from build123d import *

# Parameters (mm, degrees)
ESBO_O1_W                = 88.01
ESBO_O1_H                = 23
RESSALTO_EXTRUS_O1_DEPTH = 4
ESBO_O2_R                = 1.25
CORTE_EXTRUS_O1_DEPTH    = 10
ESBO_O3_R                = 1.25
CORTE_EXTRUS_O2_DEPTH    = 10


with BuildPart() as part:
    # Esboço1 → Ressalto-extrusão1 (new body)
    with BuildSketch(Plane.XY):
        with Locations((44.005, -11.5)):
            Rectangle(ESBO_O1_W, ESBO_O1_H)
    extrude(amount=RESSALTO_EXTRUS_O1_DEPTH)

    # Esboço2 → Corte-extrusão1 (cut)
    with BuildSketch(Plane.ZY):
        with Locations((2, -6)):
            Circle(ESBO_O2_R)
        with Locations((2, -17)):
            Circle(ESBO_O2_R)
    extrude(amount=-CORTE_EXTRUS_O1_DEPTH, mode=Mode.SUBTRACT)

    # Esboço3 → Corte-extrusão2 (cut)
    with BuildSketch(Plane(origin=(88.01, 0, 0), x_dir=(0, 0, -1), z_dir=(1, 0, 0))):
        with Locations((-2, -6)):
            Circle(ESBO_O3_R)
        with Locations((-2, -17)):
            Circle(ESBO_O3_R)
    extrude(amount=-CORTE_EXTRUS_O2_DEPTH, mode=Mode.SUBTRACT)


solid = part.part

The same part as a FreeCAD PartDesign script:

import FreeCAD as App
import Part
import Sketcher

V = App.Vector
Q = App.Units.Quantity


def add_polygon(sketch, points):
    """Adds a closed chain of lines whose ends are joined by coincident constraints."""
    first, n = sketch.GeometryCount, len(points)
    for a, b in zip(points, points[1:] + points[:1]):
        sketch.addGeometry(Part.LineSegment(App.Vector(*a, 0), App.Vector(*b, 0)), False)
    for i in range(n):
        sketch.addConstraint(Sketcher.Constraint("Coincident", first + i, 2, first + (i + 1) % n, 1))

doc = App.newDocument("Part")
body = doc.addObject("PartDesign::Body", "Body")

# Sketch on XY plane
sketch1 = body.newObject("Sketcher::SketchObject", "Sketch")
sketch1.AttachmentSupport = (doc.getObject("XY_Plane"), [""])
sketch1.MapMode = "FlatFace"
add_polygon(sketch1, [(0, 0), (0, -23), (88, -23), (88, 0)])  # lines 0-3
sketch1.addConstraint([
    Sketcher.Constraint("Vertical", 0),
    Sketcher.Constraint("Horizontal", 1),
    Sketcher.Constraint("Vertical", 2),
    Sketcher.Constraint("Horizontal", 3),
    Sketcher.Constraint("Coincident", 3, 2, -1, 1),
    Sketcher.Constraint("DistanceY", 0, 2, 0, 1, Q("23 mm")),
    Sketcher.Constraint("DistanceX", 1, 1, 1, 2, Q("88.01 mm")),
])
pad1 = body.newObject("PartDesign::Pad", "Pad")
pad1.Profile = sketch1
pad1.Length = 4

# Sketch on YZ plane
sketch2 = body.newObject("Sketcher::SketchObject", "Sketch001")
sketch2.AttachmentSupport = (doc.getObject("YZ_Plane"), [""])
sketch2.MapMode = "FlatFace"
sketch2.addGeometry([
    Part.Circle(V(-6, 2, 0), V(0, 0, 1), 1.2),
    Part.Circle(V(-17, 2, 0), V(0, 0, 1), 1.2),
], False)
sketch2.addConstraint([
    Sketcher.Constraint("Equal", 0, 1),
    Sketcher.Constraint("Horizontal", 0, 3, 1, 3),
    Sketcher.Constraint("Diameter", 0, Q("2.5 mm")),
    Sketcher.Constraint("DistanceX", 0, 3, -1, 1, Q("6 mm")),
    Sketcher.Constraint("DistanceY", -1, 1, 0, 3, Q("2 mm")),
    Sketcher.Constraint("DistanceX", 1, 3, -1, 1, Q("17 mm")),
])
pocket1 = body.newObject("PartDesign::Pocket", "Pocket")
pocket1.Profile = sketch2
pocket1.Length = 10
pocket1.Reversed = True

# Sketch on YZ plane
sketch3 = body.newObject("Sketcher::SketchObject", "Sketch002")
sketch3.AttachmentSupport = (doc.getObject("YZ_Plane"), [""])
sketch3.MapMode = "FlatFace"
sketch3.AttachmentOffset = App.Placement(V(0, 0, 88.01), App.Rotation())
sketch3.addGeometry([
    Part.Circle(V(-6, 2, 0), V(0, 0, 1), 1.2),
    Part.Circle(V(-17, 2, 0), V(0, 0, 1), 1.2),
], False)
sketch3.addConstraint([
    Sketcher.Constraint("Equal", 0, 1),
    Sketcher.Constraint("Horizontal", 0, 3, 1, 3),
    Sketcher.Constraint("Diameter", 0, Q("2.5 mm")),
    Sketcher.Constraint("DistanceX", 0, 3, -1, 1, Q("6 mm")),
    Sketcher.Constraint("DistanceY", -1, 1, 0, 3, Q("2 mm")),
    Sketcher.Constraint("DistanceX", 1, 3, -1, 1, Q("17 mm")),
])
pocket2 = body.newObject("PartDesign::Pocket", "Pocket001")
pocket2.Profile = sketch3
pocket2.Length = 10

doc.recompute()
